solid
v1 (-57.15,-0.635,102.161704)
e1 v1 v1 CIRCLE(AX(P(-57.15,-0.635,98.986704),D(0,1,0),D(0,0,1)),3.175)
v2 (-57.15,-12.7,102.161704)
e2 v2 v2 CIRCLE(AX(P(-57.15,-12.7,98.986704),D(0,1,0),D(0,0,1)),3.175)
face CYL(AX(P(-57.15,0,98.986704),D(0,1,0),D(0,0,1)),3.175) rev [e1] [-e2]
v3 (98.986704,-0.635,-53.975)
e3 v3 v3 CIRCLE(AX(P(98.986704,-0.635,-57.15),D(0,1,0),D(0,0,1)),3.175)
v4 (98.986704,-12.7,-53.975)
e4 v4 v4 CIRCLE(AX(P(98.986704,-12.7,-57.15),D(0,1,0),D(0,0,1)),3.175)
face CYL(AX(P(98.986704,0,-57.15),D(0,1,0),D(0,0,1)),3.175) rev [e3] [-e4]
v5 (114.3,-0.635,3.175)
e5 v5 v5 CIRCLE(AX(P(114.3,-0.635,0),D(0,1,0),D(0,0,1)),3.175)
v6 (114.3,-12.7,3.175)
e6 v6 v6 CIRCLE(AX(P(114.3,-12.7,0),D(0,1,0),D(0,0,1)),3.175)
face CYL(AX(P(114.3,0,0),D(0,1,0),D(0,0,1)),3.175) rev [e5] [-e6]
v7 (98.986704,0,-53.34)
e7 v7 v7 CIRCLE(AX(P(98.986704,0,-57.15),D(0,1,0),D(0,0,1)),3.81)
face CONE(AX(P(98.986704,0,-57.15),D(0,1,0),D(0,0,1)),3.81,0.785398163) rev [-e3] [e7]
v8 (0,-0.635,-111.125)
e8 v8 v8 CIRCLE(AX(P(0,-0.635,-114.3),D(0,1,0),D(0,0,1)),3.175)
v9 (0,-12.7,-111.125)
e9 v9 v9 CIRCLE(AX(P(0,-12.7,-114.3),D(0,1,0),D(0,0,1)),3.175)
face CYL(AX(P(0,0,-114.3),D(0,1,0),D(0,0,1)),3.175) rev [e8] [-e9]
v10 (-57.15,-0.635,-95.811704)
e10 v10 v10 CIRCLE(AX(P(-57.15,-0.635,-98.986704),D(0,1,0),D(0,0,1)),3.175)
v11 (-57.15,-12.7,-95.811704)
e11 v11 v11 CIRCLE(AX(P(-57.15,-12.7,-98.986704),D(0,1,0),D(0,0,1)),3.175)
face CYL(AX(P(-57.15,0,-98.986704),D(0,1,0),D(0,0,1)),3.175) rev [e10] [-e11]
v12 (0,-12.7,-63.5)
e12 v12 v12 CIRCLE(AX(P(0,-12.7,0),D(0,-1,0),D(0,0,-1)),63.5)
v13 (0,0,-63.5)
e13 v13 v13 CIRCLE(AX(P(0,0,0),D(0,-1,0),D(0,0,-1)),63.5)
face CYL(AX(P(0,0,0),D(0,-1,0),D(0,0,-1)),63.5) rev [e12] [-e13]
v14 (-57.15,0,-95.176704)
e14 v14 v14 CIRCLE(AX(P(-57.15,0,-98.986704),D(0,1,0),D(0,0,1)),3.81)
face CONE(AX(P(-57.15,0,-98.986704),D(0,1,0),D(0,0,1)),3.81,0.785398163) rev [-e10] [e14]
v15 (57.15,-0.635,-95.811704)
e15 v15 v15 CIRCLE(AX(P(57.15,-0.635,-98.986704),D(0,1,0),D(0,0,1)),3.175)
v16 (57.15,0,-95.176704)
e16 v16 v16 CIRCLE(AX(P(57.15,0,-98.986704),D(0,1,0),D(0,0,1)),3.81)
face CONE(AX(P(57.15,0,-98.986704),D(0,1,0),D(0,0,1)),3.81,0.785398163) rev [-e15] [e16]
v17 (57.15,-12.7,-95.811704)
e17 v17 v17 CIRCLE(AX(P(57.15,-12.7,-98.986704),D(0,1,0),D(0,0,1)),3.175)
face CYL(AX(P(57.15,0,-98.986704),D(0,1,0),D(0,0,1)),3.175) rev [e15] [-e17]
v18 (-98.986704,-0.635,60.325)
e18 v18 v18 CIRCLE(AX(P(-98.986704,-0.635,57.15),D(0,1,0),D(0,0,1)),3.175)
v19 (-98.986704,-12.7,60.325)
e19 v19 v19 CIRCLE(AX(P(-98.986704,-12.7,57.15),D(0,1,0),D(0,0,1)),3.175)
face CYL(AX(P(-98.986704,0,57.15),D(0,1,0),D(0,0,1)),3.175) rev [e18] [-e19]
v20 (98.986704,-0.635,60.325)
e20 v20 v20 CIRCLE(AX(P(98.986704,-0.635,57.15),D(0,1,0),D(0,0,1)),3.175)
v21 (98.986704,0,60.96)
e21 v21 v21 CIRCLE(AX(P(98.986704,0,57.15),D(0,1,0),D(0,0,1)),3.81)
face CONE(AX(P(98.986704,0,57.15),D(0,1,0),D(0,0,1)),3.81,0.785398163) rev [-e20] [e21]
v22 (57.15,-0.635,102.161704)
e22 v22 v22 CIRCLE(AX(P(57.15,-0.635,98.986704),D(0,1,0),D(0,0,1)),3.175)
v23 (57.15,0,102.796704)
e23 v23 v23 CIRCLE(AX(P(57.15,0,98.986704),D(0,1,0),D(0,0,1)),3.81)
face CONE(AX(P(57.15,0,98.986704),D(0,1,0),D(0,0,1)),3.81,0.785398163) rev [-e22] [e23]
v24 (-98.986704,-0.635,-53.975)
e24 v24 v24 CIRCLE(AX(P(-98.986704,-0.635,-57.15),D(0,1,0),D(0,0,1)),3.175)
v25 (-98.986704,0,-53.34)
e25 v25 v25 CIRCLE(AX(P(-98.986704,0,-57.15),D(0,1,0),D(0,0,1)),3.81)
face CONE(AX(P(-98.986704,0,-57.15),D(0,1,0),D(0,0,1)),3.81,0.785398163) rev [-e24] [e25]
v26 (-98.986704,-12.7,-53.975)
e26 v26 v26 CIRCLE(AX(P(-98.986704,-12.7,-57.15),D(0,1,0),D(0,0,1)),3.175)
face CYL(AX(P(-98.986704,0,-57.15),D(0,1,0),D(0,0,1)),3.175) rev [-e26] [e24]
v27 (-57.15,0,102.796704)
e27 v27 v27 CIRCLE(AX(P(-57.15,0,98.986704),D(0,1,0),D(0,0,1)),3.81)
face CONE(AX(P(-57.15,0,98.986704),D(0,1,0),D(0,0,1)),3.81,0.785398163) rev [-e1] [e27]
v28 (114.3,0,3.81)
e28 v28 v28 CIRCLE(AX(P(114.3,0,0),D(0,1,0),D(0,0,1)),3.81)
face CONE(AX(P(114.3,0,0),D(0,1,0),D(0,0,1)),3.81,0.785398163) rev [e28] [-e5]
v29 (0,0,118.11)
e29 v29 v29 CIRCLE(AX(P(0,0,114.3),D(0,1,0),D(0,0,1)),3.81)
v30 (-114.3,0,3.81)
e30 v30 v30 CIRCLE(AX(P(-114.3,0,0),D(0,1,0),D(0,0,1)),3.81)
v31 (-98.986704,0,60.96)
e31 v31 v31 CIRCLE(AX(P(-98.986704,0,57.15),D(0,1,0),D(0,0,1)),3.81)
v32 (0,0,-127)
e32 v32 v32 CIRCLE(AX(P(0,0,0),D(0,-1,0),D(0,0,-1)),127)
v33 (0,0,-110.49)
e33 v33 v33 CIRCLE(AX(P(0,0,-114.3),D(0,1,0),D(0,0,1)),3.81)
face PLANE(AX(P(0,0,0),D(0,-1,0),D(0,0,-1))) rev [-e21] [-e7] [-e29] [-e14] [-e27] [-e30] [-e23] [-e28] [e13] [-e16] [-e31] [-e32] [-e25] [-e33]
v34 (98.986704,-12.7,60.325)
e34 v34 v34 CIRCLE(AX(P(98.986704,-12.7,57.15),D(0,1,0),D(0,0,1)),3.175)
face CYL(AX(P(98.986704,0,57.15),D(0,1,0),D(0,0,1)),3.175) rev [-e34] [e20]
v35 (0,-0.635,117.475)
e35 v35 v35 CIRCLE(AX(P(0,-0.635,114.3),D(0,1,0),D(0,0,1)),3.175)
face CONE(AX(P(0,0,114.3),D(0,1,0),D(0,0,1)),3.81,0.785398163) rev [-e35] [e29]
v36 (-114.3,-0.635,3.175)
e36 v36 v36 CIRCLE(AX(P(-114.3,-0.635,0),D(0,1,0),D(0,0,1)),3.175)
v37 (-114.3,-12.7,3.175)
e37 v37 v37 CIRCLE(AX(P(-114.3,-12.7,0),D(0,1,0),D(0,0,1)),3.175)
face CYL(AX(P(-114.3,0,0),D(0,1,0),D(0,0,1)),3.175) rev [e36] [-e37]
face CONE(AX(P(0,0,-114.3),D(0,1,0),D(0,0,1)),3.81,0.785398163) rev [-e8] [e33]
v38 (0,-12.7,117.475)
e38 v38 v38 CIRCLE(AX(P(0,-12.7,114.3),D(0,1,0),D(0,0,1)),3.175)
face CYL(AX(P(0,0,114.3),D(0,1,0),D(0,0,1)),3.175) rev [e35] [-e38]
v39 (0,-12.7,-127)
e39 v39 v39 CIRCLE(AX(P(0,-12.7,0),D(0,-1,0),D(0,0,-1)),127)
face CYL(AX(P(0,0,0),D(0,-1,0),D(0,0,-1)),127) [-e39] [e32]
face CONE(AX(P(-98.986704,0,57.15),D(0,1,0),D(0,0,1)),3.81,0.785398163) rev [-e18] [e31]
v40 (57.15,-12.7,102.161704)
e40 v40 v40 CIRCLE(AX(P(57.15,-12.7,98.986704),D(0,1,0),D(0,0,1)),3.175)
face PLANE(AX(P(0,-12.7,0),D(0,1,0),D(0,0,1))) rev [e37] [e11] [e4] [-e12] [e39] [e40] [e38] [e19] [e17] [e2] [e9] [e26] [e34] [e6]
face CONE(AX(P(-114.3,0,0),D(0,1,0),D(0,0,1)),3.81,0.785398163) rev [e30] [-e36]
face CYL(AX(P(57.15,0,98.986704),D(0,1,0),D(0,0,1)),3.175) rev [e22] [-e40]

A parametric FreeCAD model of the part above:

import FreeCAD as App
import Part
import Sketcher

V = App.Vector
Q = App.Units.Quantity


def add_polygon(sketch, points):
    """Adds a closed chain of lines whose ends are joined by coincident constraints."""
    first, n = sketch.GeometryCount, len(points)
    for a, b in zip(points, points[1:] + points[:1]):
        sketch.addGeometry(Part.LineSegment(App.Vector(*a, 0), App.Vector(*b, 0)), False)
    for i in range(n):
        sketch.addConstraint(Sketcher.Constraint("Coincident", first + i, 2, first + (i + 1) % n, 1))

doc = App.newDocument("Part")
body = doc.addObject("PartDesign::Body", "Body")

sketch1 = doc.addObject("Sketcher::SketchObject", "Sketch")
body.addObject(sketch1)
sketch1.AttachmentSupport = (doc.XY_Plane, [""])
sketch1.MapMode = "FlatFace"
add_polygon(sketch1, [(-127, 0), (-127, -12.7), (-63.5, -12.7), (-63.5, 0)])
sketch1.addConstraint([
    Sketcher.Constraint("Vertical", 0),
    Sketcher.Constraint("Horizontal", 1),
    Sketcher.Constraint("Vertical", 2),
    Sketcher.Constraint("Horizontal", 3),
    Sketcher.Constraint("PointOnObject", 2, 2, -1),
    Sketcher.Constraint("DistanceX", 1, 1, 1, 2, Q("2.5 in")),
    Sketcher.Constraint("DistanceY", 0, 2, 0, 1, Q("0.5 in")),
    Sketcher.Constraint("DistanceX", 0, 2, -1, 1, Q("5 in")),
])
revolution = doc.addObject("PartDesign::Revolution", "Revolution")
body.addObject(revolution)
revolution.Profile = sketch1
revolution.ReferenceAxis = (sketch1, ["V_Axis"])
revolution.Angle = 360

sketch2 = doc.addObject("Sketcher::SketchObject", "Sketch001")
body.addObject(sketch2)
sketch2.AttachmentSupport = (doc.XZ_Plane, [""])
sketch2.MapMode = "FlatFace"
sketch2.addGeometry(Part.Circle(V(114.3, 0, 0), V(0, 0, 1), 3.175), False)
sketch2.addConstraint([
    Sketcher.Constraint("PointOnObject", 0, 3, -1),
    Sketcher.Constraint("Diameter", 0, Q("0.25 in")),
    Sketcher.Constraint("DistanceX", -1, 1, 0, 3, Q("4.5 in")),
])
doc.recompute()
hole = doc.addObject("PartDesign::Hole", "Hole")
body.addObject(hole)
hole.Profile = sketch2
hole.ThreadType = "None"
hole.Diameter = Q("0.25 in")
hole.DepthType = "ThroughAll"
hole.HoleCutType = "Countersink"
hole.HoleCutDiameter = Q("0.3 in")
hole.HoleCutCountersinkAngle = 90
hole.Reversed = True
doc.recompute()

polarpattern = doc.addObject("PartDesign::PolarPattern", "PolarPattern")
body.addObject(polarpattern)
polarpattern.Originals = [hole]
polarpattern.Axis = (doc.Y_Axis, [""])
polarpattern.Angle = 360
polarpattern.Occurrences = 12
body.Tip = polarpattern

doc.recompute()
